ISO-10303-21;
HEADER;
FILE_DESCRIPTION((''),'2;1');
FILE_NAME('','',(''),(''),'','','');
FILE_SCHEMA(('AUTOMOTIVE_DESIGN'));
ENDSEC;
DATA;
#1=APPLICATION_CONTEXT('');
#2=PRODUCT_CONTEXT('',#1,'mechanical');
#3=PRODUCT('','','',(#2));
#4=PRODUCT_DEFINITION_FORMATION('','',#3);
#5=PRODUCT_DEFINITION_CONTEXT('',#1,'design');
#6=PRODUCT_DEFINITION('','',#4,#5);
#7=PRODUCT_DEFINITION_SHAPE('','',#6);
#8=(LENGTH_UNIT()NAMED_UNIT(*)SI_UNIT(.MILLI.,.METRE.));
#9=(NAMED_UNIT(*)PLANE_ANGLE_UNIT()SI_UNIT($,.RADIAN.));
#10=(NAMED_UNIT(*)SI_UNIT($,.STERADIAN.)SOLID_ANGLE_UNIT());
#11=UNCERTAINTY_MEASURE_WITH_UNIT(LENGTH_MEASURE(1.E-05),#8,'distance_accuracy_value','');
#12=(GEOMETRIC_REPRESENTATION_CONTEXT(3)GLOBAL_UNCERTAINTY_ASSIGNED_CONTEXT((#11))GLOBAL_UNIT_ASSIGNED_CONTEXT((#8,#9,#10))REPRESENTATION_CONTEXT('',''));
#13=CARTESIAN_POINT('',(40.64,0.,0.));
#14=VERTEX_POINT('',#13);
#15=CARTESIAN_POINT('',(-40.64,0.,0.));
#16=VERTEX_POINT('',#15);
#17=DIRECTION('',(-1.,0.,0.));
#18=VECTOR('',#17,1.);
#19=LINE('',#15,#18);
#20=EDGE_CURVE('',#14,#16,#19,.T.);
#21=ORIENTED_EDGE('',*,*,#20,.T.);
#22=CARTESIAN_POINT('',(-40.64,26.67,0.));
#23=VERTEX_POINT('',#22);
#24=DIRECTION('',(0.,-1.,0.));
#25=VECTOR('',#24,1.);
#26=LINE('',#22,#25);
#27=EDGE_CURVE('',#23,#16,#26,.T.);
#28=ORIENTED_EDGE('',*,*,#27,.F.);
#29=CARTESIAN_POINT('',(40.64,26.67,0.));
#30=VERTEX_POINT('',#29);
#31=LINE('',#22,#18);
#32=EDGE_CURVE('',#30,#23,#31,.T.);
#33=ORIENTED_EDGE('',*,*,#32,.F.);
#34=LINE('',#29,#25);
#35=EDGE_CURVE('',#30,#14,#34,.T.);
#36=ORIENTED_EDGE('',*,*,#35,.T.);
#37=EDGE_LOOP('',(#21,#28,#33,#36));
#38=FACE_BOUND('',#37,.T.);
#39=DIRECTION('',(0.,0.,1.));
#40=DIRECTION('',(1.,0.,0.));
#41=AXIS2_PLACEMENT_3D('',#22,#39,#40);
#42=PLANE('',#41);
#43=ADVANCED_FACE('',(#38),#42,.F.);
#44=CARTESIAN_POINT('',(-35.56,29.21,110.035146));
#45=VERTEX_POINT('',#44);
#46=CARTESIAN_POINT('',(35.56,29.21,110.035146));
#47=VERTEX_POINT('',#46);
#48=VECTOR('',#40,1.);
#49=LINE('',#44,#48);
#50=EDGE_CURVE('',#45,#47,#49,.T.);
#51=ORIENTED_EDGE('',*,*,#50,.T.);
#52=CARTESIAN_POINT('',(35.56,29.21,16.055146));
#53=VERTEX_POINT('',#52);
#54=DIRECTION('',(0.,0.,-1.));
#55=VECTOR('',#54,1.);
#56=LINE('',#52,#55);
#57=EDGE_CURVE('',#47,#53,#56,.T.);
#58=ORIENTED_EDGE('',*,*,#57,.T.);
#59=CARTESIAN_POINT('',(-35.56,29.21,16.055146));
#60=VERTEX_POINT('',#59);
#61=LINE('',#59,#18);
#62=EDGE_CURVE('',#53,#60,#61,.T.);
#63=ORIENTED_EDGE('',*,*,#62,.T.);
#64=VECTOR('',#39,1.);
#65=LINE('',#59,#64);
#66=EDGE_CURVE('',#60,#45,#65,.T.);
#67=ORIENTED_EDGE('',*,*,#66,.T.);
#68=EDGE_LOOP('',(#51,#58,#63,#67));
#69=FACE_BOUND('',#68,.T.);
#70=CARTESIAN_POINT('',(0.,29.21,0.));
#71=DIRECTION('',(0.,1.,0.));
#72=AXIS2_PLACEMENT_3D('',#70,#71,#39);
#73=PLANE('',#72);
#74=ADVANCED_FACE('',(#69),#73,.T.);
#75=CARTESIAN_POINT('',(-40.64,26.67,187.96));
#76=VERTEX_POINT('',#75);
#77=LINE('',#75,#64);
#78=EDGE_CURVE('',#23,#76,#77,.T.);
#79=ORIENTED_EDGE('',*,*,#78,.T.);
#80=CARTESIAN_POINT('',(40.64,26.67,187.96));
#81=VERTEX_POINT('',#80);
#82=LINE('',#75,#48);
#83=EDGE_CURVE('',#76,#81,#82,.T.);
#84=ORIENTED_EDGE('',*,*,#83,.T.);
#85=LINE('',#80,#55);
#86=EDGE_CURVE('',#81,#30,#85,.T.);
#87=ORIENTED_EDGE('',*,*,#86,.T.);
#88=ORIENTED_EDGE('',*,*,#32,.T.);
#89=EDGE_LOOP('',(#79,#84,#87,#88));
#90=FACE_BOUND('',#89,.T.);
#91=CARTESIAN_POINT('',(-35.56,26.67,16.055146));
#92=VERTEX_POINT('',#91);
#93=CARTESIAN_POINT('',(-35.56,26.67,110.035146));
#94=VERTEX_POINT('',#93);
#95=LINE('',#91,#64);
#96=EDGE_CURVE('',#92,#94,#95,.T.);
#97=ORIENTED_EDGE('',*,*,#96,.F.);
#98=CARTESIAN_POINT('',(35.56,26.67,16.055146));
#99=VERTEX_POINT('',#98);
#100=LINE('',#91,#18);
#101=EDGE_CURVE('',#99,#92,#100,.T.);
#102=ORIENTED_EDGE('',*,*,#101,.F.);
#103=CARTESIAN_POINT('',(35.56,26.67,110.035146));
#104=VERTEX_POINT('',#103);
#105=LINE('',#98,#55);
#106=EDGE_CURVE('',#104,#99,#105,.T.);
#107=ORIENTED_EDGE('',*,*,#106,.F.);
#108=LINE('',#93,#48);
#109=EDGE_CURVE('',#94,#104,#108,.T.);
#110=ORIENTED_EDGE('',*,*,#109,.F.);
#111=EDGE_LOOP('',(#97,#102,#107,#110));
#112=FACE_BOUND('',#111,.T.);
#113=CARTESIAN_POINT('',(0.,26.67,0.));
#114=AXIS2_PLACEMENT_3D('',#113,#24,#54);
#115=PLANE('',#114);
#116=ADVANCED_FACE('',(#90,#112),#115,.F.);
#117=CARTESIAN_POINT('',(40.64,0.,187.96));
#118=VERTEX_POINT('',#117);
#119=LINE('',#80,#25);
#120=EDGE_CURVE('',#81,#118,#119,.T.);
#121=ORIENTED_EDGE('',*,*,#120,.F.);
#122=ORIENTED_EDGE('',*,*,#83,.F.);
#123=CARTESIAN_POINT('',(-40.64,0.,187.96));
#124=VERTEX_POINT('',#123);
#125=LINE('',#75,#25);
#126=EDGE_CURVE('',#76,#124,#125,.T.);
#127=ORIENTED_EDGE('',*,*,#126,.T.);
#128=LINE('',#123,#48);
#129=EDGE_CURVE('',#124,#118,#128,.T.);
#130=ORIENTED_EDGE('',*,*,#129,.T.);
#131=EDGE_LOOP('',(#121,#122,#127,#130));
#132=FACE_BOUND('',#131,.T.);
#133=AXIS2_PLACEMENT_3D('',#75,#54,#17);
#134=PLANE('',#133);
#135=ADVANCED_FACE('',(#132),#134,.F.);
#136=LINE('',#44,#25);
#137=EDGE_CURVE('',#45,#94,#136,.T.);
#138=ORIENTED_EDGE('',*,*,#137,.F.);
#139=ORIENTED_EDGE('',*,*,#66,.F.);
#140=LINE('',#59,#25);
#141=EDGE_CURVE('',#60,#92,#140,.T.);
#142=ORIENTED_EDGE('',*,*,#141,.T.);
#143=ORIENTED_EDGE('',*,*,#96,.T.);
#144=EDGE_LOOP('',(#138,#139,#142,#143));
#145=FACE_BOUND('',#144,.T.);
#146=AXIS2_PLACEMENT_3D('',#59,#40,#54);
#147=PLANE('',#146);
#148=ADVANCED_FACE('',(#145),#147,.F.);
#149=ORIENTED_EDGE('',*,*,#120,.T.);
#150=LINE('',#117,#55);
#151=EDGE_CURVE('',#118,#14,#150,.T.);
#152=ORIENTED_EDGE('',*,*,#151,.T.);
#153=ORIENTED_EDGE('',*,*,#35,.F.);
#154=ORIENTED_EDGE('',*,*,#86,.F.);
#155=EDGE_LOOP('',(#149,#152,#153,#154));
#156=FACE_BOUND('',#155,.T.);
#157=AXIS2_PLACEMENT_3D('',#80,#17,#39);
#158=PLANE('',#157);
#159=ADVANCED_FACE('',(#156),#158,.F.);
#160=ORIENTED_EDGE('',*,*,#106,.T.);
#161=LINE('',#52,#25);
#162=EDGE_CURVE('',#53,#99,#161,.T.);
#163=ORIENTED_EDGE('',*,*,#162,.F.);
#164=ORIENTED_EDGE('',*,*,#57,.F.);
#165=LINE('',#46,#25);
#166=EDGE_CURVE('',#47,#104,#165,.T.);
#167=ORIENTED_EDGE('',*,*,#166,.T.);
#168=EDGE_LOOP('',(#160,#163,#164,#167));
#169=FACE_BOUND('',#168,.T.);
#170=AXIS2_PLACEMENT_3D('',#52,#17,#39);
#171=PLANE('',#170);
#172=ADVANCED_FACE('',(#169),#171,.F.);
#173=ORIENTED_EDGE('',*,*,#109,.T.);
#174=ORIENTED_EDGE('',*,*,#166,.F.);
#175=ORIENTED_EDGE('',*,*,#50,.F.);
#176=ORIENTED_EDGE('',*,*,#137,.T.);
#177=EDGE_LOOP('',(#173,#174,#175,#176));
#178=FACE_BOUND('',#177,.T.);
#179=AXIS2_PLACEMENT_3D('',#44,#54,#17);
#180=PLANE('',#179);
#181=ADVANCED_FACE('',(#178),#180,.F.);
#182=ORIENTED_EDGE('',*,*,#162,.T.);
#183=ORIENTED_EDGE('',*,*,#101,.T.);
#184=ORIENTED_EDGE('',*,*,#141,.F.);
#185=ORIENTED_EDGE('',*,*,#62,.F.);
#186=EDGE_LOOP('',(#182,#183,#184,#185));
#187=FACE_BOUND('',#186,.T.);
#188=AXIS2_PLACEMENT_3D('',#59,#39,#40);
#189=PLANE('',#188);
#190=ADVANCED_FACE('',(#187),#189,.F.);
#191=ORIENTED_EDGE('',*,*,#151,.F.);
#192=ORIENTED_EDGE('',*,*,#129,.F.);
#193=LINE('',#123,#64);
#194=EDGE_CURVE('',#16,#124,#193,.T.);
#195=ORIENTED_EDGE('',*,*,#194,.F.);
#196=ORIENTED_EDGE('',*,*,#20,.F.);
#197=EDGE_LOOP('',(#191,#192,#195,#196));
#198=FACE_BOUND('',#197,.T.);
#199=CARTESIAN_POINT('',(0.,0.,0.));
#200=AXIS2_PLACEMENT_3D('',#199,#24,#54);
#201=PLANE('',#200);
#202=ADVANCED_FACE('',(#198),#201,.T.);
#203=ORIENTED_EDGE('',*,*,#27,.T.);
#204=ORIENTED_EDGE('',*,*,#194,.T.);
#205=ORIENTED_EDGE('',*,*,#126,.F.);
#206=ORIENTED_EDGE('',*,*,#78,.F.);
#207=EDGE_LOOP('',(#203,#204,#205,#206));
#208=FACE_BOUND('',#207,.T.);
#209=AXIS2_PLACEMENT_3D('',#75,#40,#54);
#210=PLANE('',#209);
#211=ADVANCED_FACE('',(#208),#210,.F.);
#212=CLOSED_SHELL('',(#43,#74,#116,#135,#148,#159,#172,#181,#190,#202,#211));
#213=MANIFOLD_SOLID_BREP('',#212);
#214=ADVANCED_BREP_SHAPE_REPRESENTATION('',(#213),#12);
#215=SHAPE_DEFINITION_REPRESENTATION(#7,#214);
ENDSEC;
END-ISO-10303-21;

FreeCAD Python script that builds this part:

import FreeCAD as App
import Part
import Sketcher

V = App.Vector
Q = App.Units.Quantity


def add_polygon(sketch, points):
    """Adds a closed chain of lines whose ends are joined by coincident constraints."""
    first, n = sketch.GeometryCount, len(points)
    for a, b in zip(points, points[1:] + points[:1]):
        sketch.addGeometry(Part.LineSegment(App.Vector(*a, 0), App.Vector(*b, 0)), False)
    for i in range(n):
        sketch.addConstraint(Sketcher.Constraint("Coincident", first + i, 2, first + (i + 1) % n, 1))

doc = App.newDocument("Part")
body = doc.addObject("PartDesign::Body", "Body")

# Sketch on XZ plane
sketch1 = body.newObject("Sketcher::SketchObject", "Sketch")
sketch1.AttachmentSupport = (doc.getObject("XZ_Plane"), [""])
sketch1.MapMode = "FlatFace"
add_polygon(sketch1, [(-41, 0), (-41, 188), (41, 188), (41, 0)])  # lines 0-3
sketch1.addConstraint([
    Sketcher.Constraint("Vertical", 0),
    Sketcher.Constraint("Horizontal", 1),
    Sketcher.Constraint("Vertical", 2),
    Sketcher.Constraint("Horizontal", 3),
    Sketcher.Constraint("Symmetric", 2, 2, 3, 2, -1, 1),
    Sketcher.Constraint("DistanceX", 1, 1, 1, 2, Q("3.2 in")),
    Sketcher.Constraint("DistanceY", 0, 1, 0, 2, Q("7.4 in")),
])
pad1 = body.newObject("PartDesign::Pad", "Pad")
pad1.Profile = sketch1
pad1.Length = Q("1.05 in")
pad1.Reversed = True

# Sketch on XZ plane
sketch2 = body.newObject("Sketcher::SketchObject", "Sketch001")
sketch2.AttachmentSupport = (doc.getObject("XZ_Plane"), [""])
sketch2.MapMode = "FlatFace"
sketch2.AttachmentOffset = App.Placement(V(0, 0, -1.05 * 25.4), App.Rotation())
add_polygon(sketch2, [(-36, 16), (-36, 110), (36, 110), (36, 16)])  # lines 0-3
sketch2.addConstraint([
    Sketcher.Constraint("Vertical", 0),
    Sketcher.Constraint("Horizontal", 1),
    Sketcher.Constraint("Vertical", 2),
    Sketcher.Constraint("Horizontal", 3),
    Sketcher.Constraint("DistanceX", 1, 1, 1, 2, Q("2.8 in")),
    Sketcher.Constraint("DistanceY", 0, 1, 0, 2, Q("3.7 in")),
    Sketcher.Constraint("DistanceX", 0, 2, -1, 1, Q("1.4 in")),
    Sketcher.Constraint("DistanceY", -1, 1, 0, 2, Q("110.035146 mm")),
])
pad2 = body.newObject("PartDesign::Pad", "Pad001")
pad2.Profile = sketch2
pad2.Length = Q("0.1 in")
pad2.Reversed = True

doc.recompute()
